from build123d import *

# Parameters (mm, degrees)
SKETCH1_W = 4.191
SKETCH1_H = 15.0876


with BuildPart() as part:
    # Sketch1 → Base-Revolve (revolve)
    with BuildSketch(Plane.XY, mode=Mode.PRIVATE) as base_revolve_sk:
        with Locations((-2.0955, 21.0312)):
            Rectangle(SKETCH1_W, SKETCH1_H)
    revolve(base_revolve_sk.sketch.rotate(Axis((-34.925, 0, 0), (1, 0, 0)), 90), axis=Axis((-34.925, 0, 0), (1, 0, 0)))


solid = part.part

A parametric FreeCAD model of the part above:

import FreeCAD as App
import Part
import Sketcher
from FreeCAD import Vector
Q = App.Units.Quantity


def add_polygon(sketch, points):
    """Adds a closed chain of lines whose ends are joined by coincident constraints."""
    first, n = sketch.GeometryCount, len(points)
    for a, b in zip(points, points[1:] + points[:1]):
        sketch.addGeometry(Part.LineSegment(App.Vector(*a, 0), App.Vector(*b, 0)), False)
    for i in range(n):
        sketch.addConstraint(Sketcher.Constraint("Coincident", first + i, 2, first + (i + 1) % n, 1))

doc = App.newDocument("Part")
body = doc.addObject("PartDesign::Body", "Body")

sketch1 = body.newObject("Sketcher::SketchObject", "Sketch")
sketch1.AttachmentSupport = (doc.getObject("XY_Plane"), [""])
sketch1.MapMode = "FlatFace"
add_polygon(sketch1, [(-4.2, 28.6), (-4.2, 13.5), (0, 13.5), (0, 28.6)])
sketch1.addConstraint([
    Sketcher.Constraint("Vertical", 0),
    Sketcher.Constraint("Horizontal", 1),
    Sketcher.Constraint("Vertical", 2),
    Sketcher.Constraint("Horizontal", 3),
    Sketcher.Constraint("PointOnObject", 1, 2, -2),
    Sketcher.Constraint("DistanceX", 1, 1, 1, 2, Q("0.165 in")),
    Sketcher.Constraint("DistanceY", 0, 2, 0, 1, Q("0.594 in")),
    Sketcher.Constraint("DistanceY", -1, 1, 0, 2, Q("0.531 in")),
])
revolution = body.newObject("PartDesign::Revolution", "Revolution")
revolution.Profile = sketch1
revolution.ReferenceAxis = (sketch1, ["H_Axis"])
revolution.Angle = 360

doc.recompute()
